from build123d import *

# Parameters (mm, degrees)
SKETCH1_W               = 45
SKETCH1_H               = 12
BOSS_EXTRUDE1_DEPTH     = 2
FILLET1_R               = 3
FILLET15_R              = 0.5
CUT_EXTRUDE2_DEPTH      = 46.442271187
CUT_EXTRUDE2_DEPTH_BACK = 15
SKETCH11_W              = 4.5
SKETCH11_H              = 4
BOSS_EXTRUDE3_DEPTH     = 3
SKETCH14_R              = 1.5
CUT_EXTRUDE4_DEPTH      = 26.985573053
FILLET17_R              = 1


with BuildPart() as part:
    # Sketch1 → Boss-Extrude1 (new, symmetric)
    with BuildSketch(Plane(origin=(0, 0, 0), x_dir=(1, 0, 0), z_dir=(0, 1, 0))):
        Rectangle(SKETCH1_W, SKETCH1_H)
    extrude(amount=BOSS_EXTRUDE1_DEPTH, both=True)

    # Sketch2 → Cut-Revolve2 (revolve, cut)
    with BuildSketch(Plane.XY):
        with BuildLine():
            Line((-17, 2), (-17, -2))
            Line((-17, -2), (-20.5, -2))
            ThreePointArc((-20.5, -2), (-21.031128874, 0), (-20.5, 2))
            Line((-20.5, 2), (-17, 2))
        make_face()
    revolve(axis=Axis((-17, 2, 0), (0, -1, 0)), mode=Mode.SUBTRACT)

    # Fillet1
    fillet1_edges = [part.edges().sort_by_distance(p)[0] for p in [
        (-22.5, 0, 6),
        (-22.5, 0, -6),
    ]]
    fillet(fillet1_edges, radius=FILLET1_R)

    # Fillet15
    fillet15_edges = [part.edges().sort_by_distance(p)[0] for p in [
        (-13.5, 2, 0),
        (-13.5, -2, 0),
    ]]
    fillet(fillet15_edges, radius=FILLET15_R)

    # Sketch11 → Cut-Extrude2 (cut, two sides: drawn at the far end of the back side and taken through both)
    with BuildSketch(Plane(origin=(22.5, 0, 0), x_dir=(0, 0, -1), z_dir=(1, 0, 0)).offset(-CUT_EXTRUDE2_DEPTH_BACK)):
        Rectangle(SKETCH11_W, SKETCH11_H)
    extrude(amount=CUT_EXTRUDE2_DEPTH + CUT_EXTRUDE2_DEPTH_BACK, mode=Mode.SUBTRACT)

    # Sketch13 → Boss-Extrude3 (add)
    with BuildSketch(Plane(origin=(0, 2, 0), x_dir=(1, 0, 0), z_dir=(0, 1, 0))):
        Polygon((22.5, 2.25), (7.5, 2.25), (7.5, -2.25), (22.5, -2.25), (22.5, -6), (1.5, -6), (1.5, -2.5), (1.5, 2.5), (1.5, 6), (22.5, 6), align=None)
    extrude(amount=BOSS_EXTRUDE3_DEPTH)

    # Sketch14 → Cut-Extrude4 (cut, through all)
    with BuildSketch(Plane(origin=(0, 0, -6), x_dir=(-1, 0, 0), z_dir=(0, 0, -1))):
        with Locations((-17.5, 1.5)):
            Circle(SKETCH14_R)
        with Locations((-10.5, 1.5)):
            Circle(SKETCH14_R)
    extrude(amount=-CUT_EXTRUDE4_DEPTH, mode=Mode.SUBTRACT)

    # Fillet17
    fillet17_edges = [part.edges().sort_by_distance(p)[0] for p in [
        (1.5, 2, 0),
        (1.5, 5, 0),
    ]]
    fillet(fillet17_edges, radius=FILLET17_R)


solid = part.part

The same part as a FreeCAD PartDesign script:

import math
import FreeCAD as App
import Part
import Sketcher
from FreeCAD import Vector


def edges_at(feature, points):
    """Names of the edges that pass closest to the given points."""
    edges = feature.Shape.Edges
    near = lambda p: min(range(len(edges)), key=lambda i: edges[i].distToShape(Part.Vertex(*p))[0])
    return sorted({f"Edge{near(p) + 1}" for p in points})


def add_polygon(sketch, points):
    """Adds a closed chain of lines whose ends are joined by coincident constraints."""
    first, n = sketch.GeometryCount, len(points)
    for a, b in zip(points, points[1:] + points[:1]):
        sketch.addGeometry(Part.LineSegment(App.Vector(*a, 0), App.Vector(*b, 0)), False)
    for i in range(n):
        sketch.addConstraint(Sketcher.Constraint("Coincident", first + i, 2, first + (i + 1) % n, 1))

doc = App.newDocument("Part")
body = doc.addObject("PartDesign::Body", "Body")

sketch1 = body.newObject("Sketcher::SketchObject", "Sketch")
sketch1.AttachmentSupport = (doc.getObject("XZ_Plane"), [""])
sketch1.MapMode = "FlatFace"
add_polygon(sketch1, [(-22.5, -6), (-22.5, 6), (22.5, 6), (22.5, -6)])
sketch1.addConstraint([
    Sketcher.Constraint("Vertical", 0),
    Sketcher.Constraint("Horizontal", 1),
    Sketcher.Constraint("Vertical", 2),
    Sketcher.Constraint("Horizontal", 3),
    Sketcher.Constraint("Symmetric", 0, 2, 2, 2, -1, 1),
    Sketcher.Constraint("DistanceX", 1, 1, 1, 2, 45.0),
    Sketcher.Constraint("DistanceY", 0, 1, 0, 2, 12.0),
])
pad1 = body.newObject("PartDesign::Pad", "Pad")
pad1.Profile = sketch1
pad1.Length = 4
pad1.Midplane = True

sketch2 = body.newObject("Sketcher::SketchObject", "Sketch001")
sketch2.AttachmentSupport = (doc.getObject("XY_Plane"), [""])
sketch2.MapMode = "FlatFace"
sketch2.addGeometry([
    Part.LineSegment(Vector(-17, -2, 0), Vector(-17, 2, 0)),
    Part.LineSegment(Vector(-17, 2, 0), Vector(-20.5, 2, 0)),
    Part.ArcOfCircle(Part.Circle(Vector(-17, 0, 0), Vector(0, 0, 1), 4.031129), math.radians(150.255119), math.radians(209.744881)),
    Part.LineSegment(Vector(-20.5, -2, 0), Vector(-17, -2, 0)),
], False)
sketch2.addGeometry(Part.LineSegment(Vector(-17, 2, 0), Vector(-17, -2, 0)), True)
sketch2.addConstraint([
    Sketcher.Constraint("Coincident", 0, 2, 1, 1),
    Sketcher.Constraint("Coincident", 1, 2, 2, 1),
    Sketcher.Constraint("Coincident", 2, 2, 3, 1),
    Sketcher.Constraint("Coincident", 3, 2, 0, 1),
    Sketcher.Constraint("Vertical", 0),
    Sketcher.Constraint("Horizontal", 1),
    Sketcher.Constraint("Horizontal", 3),
    Sketcher.Constraint("Vertical", 4),
    Sketcher.Constraint("Coincident", 4, 1, 0, 2),
    Sketcher.Constraint("Symmetric", 1, 2, 2, 2, -1),
    Sketcher.Constraint("Horizontal", 2, 2, 4, 2),
    Sketcher.Constraint("Vertical", 2, 3, 0, 2),
    Sketcher.Constraint("DistanceY", 0, 1, 0, 2, 4.0),
    Sketcher.Constraint("DistanceX", 1, 2, 1, 1, 3.5),
    Sketcher.Constraint("DistanceX", 2, 3, -1, 1, 17.0),
])
groove = body.newObject("PartDesign::Groove", "Groove")
groove.Profile = sketch2
groove.ReferenceAxis = (sketch2, ["Axis0"])
groove.Angle = 360
doc.recompute()

fillet = body.newObject("PartDesign::Fillet", "Fillet")
fillet.Base = (groove, edges_at(groove, [(-22.5, 0, 6), (-22.5, 0, -6)]))
fillet.Radius = 3
doc.recompute()

fillet2 = body.newObject("PartDesign::Fillet", "Fillet001")
fillet2.Base = (fillet, edges_at(fillet, [(-13.5, 2, 0), (-13.5, -2, 0)]))
fillet2.Radius = 0.5

sketch3 = body.newObject("Sketcher::SketchObject", "Sketch002")
sketch3.AttachmentSupport = (doc.getObject("YZ_Plane"), [""])
sketch3.MapMode = "FlatFace"
sketch3.AttachmentOffset = App.Placement(Vector(0, 0, 22.5), App.Rotation())
add_polygon(sketch3, [(2, 2.25), (-2, 2.25), (-2, -2.25), (2, -2.25)])
sketch3.addConstraint([
    Sketcher.Constraint("Horizontal", 0),
    Sketcher.Constraint("Vertical", 1),
    Sketcher.Constraint("Horizontal", 2),
    Sketcher.Constraint("Vertical", 3),
    Sketcher.Constraint("Symmetric", 0, 2, 2, 2, -1, 1),
    Sketcher.Constraint("DistanceX", 0, 2, 0, 1, 4.0),
    Sketcher.Constraint("DistanceY", 1, 2, 1, 1, 4.5),
])
pocket1 = body.newObject("PartDesign::Pocket", "Pocket")
pocket1.Profile = sketch3
pocket1.Type = "TwoLengths"
pocket1.Length = 46.442271
pocket1.Length2 = 15
pocket1.Reversed = True

sketch4 = body.newObject("Sketcher::SketchObject", "Sketch003")
sketch4.AttachmentSupport = (doc.getObject("XZ_Plane"), [""])
sketch4.MapMode = "FlatFace"
sketch4.AttachmentOffset = App.Placement(Vector(0, 0, -2), App.Rotation())
add_polygon(sketch4, [(7.5, -2.25), (22.5, -2.25), (22.5, -6), (1.5, -6), (1.5, 6), (22.5, 6), (22.5, 2.25), (7.5, 2.25)])
sketch4.addConstraint([
    Sketcher.Constraint("Horizontal", 0),
    Sketcher.Constraint("Vertical", 1),
    Sketcher.Constraint("Horizontal", 2),
    Sketcher.Constraint("Vertical", 3),
    Sketcher.Constraint("Horizontal", 4),
    Sketcher.Constraint("Vertical", 5),
    Sketcher.Constraint("Horizontal", 6),
    Sketcher.Constraint("Vertical", 7),
    Sketcher.Constraint("Symmetric", 1, 2, 4, 2, -1),
    Sketcher.Constraint("Equal", 1, 5),
    Sketcher.Constraint("DistanceX", 0, 1, 0, 2, 15.0),
    Sketcher.Constraint("DistanceX", 2, 2, 2, 1, 21.0),
    Sketcher.Constraint("DistanceY", 3, 1, 3, 2, 12.0),
    Sketcher.Constraint("DistanceY", 7, 2, 7, 1, 4.5),
    Sketcher.Constraint("DistanceX", -1, 1, 0, 2, 22.5),
])
pad2 = body.newObject("PartDesign::Pad", "Pad001")
pad2.Profile = sketch4
pad2.Length = 3
pad2.Reversed = True

sketch5 = body.newObject("Sketcher::SketchObject", "Sketch004")
sketch5.AttachmentSupport = (doc.getObject("XY_Plane"), [""])
sketch5.MapMode = "FlatFace"
sketch5.AttachmentOffset = App.Placement(Vector(0, 0, -6), App.Rotation())
sketch5.addGeometry([
    Part.Circle(Vector(17.5, 1.5, 0), Vector(0, 0, 1), 1.5),
    Part.Circle(Vector(10.5, 1.5, 0), Vector(0, 0, 1), 1.5),
], False)
sketch5.addConstraint([
    Sketcher.Constraint("Equal", 0, 1),
    Sketcher.Constraint("Horizontal", 0, 3, 1, 3),
    Sketcher.Constraint("Diameter", 0, 3.0),
    Sketcher.Constraint("DistanceX", 1, 3, 0, 3, 7.0),
    Sketcher.Constraint("DistanceX", -1, 1, 0, 3, 17.5),
    Sketcher.Constraint("DistanceY", -1, 1, 0, 3, 1.5),
])
pocket2 = body.newObject("PartDesign::Pocket", "Pocket001")
pocket2.Profile = sketch5
pocket2.Type = "ThroughAll"
pocket2.Reversed = True
doc.recompute()

fillet3 = body.newObject("PartDesign::Fillet", "Fillet002")
fillet3.Base = (pocket2, edges_at(pocket2, [(1.5, 2, 0), (1.5, 5, 0)]))
fillet3.Radius = 1

doc.recompute()
